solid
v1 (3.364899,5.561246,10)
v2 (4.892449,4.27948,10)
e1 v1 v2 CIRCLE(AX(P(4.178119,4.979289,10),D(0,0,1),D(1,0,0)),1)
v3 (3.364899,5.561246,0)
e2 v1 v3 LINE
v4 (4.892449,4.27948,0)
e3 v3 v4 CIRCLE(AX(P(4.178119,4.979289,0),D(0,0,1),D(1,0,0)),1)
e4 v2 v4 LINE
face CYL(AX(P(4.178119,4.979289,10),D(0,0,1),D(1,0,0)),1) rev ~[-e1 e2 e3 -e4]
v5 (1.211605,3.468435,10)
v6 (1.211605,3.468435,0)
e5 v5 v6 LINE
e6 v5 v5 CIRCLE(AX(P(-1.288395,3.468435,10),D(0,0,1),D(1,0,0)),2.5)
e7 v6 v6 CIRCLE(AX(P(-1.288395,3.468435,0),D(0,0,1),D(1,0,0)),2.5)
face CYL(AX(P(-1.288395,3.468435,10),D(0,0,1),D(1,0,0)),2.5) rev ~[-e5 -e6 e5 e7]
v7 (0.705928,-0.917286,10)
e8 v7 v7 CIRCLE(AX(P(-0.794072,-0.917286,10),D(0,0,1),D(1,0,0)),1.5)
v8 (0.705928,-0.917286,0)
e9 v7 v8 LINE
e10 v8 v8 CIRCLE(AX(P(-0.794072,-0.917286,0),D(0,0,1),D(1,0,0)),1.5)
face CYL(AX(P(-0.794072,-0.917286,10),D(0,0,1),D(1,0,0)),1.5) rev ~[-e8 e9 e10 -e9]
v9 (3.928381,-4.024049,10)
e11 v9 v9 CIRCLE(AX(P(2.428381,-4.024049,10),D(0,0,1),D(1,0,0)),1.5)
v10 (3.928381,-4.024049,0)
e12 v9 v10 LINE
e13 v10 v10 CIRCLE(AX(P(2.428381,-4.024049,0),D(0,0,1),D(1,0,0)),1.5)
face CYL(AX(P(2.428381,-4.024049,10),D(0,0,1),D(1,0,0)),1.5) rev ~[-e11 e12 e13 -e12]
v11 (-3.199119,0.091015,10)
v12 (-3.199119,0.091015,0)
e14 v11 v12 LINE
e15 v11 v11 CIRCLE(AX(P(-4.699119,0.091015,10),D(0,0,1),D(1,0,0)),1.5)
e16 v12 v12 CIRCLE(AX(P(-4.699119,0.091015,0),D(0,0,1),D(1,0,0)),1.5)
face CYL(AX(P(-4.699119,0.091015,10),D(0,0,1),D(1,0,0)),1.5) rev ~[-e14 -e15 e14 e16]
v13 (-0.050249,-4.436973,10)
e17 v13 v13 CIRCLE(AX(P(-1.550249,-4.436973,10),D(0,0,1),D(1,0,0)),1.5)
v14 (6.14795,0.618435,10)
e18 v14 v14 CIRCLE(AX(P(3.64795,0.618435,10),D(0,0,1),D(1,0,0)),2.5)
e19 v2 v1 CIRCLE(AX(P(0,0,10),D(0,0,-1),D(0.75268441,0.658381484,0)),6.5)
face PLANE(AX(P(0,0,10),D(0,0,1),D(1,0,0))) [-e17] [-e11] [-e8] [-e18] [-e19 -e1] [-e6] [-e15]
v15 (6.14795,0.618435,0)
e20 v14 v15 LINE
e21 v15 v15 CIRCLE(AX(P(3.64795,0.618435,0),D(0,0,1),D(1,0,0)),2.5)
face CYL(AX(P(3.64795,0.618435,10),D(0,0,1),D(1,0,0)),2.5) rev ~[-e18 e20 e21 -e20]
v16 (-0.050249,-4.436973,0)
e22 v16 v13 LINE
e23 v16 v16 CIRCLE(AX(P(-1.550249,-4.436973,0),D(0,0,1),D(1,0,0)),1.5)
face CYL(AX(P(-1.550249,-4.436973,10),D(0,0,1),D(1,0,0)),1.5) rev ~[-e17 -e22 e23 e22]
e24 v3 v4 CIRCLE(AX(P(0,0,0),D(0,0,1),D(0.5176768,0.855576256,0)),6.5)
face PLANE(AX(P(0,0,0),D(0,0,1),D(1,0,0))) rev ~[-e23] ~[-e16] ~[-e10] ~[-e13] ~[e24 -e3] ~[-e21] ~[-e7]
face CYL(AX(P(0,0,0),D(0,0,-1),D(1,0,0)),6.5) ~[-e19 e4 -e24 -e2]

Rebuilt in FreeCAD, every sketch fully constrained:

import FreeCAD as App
import Part
import Sketcher

V = App.Vector
Q = App.Units.Quantity

doc = App.newDocument("Part")
body = doc.addObject("PartDesign::Body", "Body")

sketch1 = doc.addObject("Sketcher::SketchObject", "Sketch")
body.addObject(sketch1)
sketch1.AttachmentSupport = (doc.XY_Plane, [""])
sketch1.MapMode = "FlatFace"
sketch1.addGeometry(Part.Circle(V(0, 0, 0), V(0, 0, 1), 6), False)
sketch1.addConstraint(Sketcher.Constraint("Coincident", 0, 3, -1, 1))
sketch1.addConstraint(Sketcher.Constraint("Diameter", 0, Q("13 mm")))
pad1 = doc.addObject("PartDesign::Pad", "Pad")
body.addObject(pad1)
pad1.Profile = sketch1
pad1.Length = 10

sketch2 = doc.addObject("Sketcher::SketchObject", "Sketch001")
body.addObject(sketch2)
sketch2.AttachmentSupport = (doc.XY_Plane, [""])
sketch2.MapMode = "FlatFace"
sketch2.AttachmentOffset = App.Placement(V(0, 0, 10), App.Rotation())
sketch2.addGeometry(Part.Circle(V(-1.3, 3.5, 0), V(0, 0, 1), 2.5), False)
sketch2.addGeometry(Part.Circle(V(-4.7, 0.1, 0), V(0, 0, 1), 1.5), False)
sketch2.addGeometry(Part.Circle(V(-0.8, -0.9, 0), V(0, 0, 1), 1.5), False)
sketch2.addGeometry(Part.Circle(V(4.2, 5, 0), V(0, 0, 1), 1), False)
sketch2.addGeometry(Part.Circle(V(3.6, 0.6, 0), V(0, 0, 1), 2.5), False)
sketch2.addGeometry(Part.Circle(V(2.4, -4, 0), V(0, 0, 1), 1.5), False)
sketch2.addGeometry(Part.Circle(V(-1.6, -4.4, 0), V(0, 0, 1), 1.5), False)
sketch2.addConstraint(Sketcher.Constraint("Equal", 1, 2))
sketch2.addConstraint(Sketcher.Constraint("Equal", 0, 4))
sketch2.addConstraint(Sketcher.Constraint("Equal", 2, 5))
sketch2.addConstraint(Sketcher.Constraint("Equal", 5, 6))
sketch2.addConstraint(Sketcher.Constraint("Diameter", 0, Q("5 mm")))
sketch2.addConstraint(Sketcher.Constraint("Diameter", 1, Q("3 mm")))
sketch2.addConstraint(Sketcher.Constraint("Diameter", 3, Q("2 mm")))
sketch2.addConstraint(Sketcher.Constraint("DistanceY", 4, 3, 0, 3, Q("2.85 mm")))
sketch2.addConstraint(Sketcher.Constraint("DistanceY", 2, 3, 1, 3, Q("1.008301 mm")))
sketch2.addConstraint(Sketcher.Constraint("DistanceX", 1, 3, 5, 3, Q("7.1275 mm")))
sketch2.addConstraint(Sketcher.Constraint("DistanceX", 6, 3, 4, 3, Q("5.198199 mm")))
sketch2.addConstraint(Sketcher.Constraint("DistanceX", 1, 3, -1, 1, Q("4.699119 mm")))
sketch2.addConstraint(Sketcher.Constraint("DistanceX", 2, 3, -1, 1, Q("0.794072 mm")))
sketch2.addConstraint(Sketcher.Constraint("DistanceX", -1, 1, 3, 3, Q("4.178119 mm")))
sketch2.addConstraint(Sketcher.Constraint("DistanceY", -1, 1, 3, 3, Q("4.979289 mm")))
sketch2.addConstraint(Sketcher.Constraint("DistanceX", -1, 1, 4, 3, Q("3.64795 mm")))
sketch2.addConstraint(Sketcher.Constraint("DistanceY", 5, 3, -1, 1, Q("4.024049 mm")))
sketch2.addConstraint(Sketcher.Constraint("DistanceY", 1, 3, 0, 3, Q("3.37742 mm")))
sketch2.addConstraint(Sketcher.Constraint("DistanceX", 0, 3, -1, 1, Q("1.288395 mm")))
sketch2.addConstraint(Sketcher.Constraint("DistanceY", -1, 1, 0, 3, Q("3.468435 mm")))
sketch2.addConstraint(Sketcher.Constraint("DistanceY", 6, 3, -1, 1, Q("4.436973 mm")))
pocket1 = doc.addObject("PartDesign::Pocket", "Pocket")
body.addObject(pocket1)
pocket1.Profile = sketch2
pocket1.Length = 50
pocket1.Midplane = True

sketch3 = doc.addObject("Sketcher::SketchObject", "Sketch002")
body.addObject(sketch3)
sketch3.AttachmentSupport = (doc.XY_Plane, [""])
sketch3.MapMode = "FlatFace"
sketch3.AttachmentOffset = App.Placement(V(0, 0, 10), App.Rotation())
sketch3.addGeometry(Part.Circle(V(4.2, 5, 0), V(0, 0, 1), 1), False)
sketch3.addConstraint(Sketcher.Constraint("Diameter", 0, Q("2 mm")))
sketch3.addConstraint(Sketcher.Constraint("DistanceX", -1, 1, 0, 3, Q("4.178119 mm")))
sketch3.addConstraint(Sketcher.Constraint("DistanceY", -1, 1, 0, 3, Q("4.979289 mm")))
pocket2 = doc.addObject("PartDesign::Pocket", "Pocket001")
body.addObject(pocket2)
pocket2.Profile = sketch3
pocket2.Length = 30
pocket2.Midplane = True

doc.recompute()
